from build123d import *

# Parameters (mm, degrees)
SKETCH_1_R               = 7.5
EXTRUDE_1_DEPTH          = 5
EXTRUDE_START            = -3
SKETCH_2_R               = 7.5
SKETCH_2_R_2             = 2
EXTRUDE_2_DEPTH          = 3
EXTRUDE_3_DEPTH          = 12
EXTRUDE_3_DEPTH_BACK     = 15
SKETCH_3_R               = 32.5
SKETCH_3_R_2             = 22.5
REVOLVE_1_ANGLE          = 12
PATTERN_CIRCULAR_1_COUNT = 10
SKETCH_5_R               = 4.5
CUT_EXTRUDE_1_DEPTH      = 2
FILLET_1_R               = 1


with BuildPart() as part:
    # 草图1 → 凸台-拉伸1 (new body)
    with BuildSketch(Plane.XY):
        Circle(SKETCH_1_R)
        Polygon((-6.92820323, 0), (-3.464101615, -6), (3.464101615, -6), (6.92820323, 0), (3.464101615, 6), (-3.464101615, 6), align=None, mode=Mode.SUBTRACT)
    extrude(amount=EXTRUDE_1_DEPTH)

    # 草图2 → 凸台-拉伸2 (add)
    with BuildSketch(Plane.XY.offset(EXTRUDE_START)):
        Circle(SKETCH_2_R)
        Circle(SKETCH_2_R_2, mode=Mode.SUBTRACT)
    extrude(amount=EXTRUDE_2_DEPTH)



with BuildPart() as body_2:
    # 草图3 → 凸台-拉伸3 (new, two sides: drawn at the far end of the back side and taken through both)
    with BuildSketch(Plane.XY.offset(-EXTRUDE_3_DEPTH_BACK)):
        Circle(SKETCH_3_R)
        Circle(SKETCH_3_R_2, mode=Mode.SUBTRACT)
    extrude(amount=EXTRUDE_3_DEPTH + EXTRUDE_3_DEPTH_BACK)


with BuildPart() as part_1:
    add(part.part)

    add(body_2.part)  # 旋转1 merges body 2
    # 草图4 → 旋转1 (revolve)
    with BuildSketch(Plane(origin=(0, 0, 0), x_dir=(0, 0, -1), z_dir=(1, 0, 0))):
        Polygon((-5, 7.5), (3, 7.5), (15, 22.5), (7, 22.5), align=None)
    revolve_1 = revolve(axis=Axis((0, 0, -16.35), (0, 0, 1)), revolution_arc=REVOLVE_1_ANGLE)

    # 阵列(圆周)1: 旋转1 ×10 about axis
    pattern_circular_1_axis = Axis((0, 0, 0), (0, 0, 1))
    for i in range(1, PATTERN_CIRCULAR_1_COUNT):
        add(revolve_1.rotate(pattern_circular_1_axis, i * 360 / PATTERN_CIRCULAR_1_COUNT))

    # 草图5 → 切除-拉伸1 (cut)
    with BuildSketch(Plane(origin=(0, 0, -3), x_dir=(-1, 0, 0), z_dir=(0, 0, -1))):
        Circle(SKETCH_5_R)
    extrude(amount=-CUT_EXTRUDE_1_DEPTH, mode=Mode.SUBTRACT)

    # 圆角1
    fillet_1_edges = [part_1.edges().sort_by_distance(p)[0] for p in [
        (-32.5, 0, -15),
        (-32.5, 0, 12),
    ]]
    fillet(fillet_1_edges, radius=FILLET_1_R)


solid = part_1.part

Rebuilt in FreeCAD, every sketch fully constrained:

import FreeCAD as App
import Part
import Sketcher

V = App.Vector
Q = App.Units.Quantity


def edges_at(feature, points):
    """Names of the edges that pass closest to the given points."""
    edges = feature.Shape.Edges
    near = lambda p: min(range(len(edges)), key=lambda i: edges[i].distToShape(Part.Vertex(*p))[0])
    return sorted({f"Edge{near(p) + 1}" for p in points})


def add_polygon(sketch, points):
    """Adds a closed chain of lines whose ends are joined by coincident constraints."""
    first, n = sketch.GeometryCount, len(points)
    for a, b in zip(points, points[1:] + points[:1]):
        sketch.addGeometry(Part.LineSegment(App.Vector(*a, 0), App.Vector(*b, 0)), False)
    for i in range(n):
        sketch.addConstraint(Sketcher.Constraint("Coincident", first + i, 2, first + (i + 1) % n, 1))

doc = App.newDocument("Part")
body = doc.addObject("PartDesign::Body", "Body")

# Sketch on XY plane
sketch1 = doc.addObject("Sketcher::SketchObject", "Sketch")
body.addObject(sketch1)
sketch1.AttachmentSupport = (doc.XY_Plane, [""])
sketch1.MapMode = "FlatFace"
sketch1.addGeometry(Part.Circle(V(0, 0, 0), V(0, 0, 1), 7.5), False)  # 0
add_polygon(sketch1, [(-3.464102, -6), (-6.928203, 0), (-3.464102, 6), (3.464102, 6), (6.928203, 0), (3.464102, -6)])  # lines 1-6
sketch1.addConstraint([
    Sketcher.Constraint("Horizontal", 3),
    Sketcher.Constraint("Horizontal", 6),
    Sketcher.Constraint("Coincident", 0, 3, -1, 1),
    Sketcher.Constraint("Symmetric", 1, 2, 4, 2, -1, 1),
    Sketcher.Constraint("Symmetric", 2, 2, 5, 2, -1, 1),
    Sketcher.Constraint("PointOnObject", 1, 2, -1),
    Sketcher.Constraint("Parallel", 1, 4),
    Sketcher.Constraint("Vertical", 3, 2, 5, 2),
    Sketcher.Constraint("Diameter", 0, Q("15 mm")),
    Sketcher.Constraint("Angle", 1, Q("120 deg")),
    Sketcher.Constraint("DistanceY", -1, 1, 2, 2, Q("6 mm")),
    Sketcher.Constraint("DistanceX", 2, 2, -1, 1, Q("3.464102 mm")),
])
pad1 = doc.addObject("PartDesign::Pad", "Pad")
body.addObject(pad1)
pad1.Profile = sketch1
pad1.Length = 5

# Sketch on XY plane
sketch2 = doc.addObject("Sketcher::SketchObject", "Sketch001")
body.addObject(sketch2)
sketch2.AttachmentSupport = (doc.XY_Plane, [""])
sketch2.MapMode = "FlatFace"
sketch2.AttachmentOffset = App.Placement(V(0, 0, -3), App.Rotation())
sketch2.addGeometry([
    Part.Circle(V(0, 0, 0), V(0, 0, 1), 7.5),
    Part.Circle(V(0, 0, 0), V(0, 0, 1), 2),
], False)
sketch2.addConstraint([
    Sketcher.Constraint("Coincident", 0, 3, -1, 1),
    Sketcher.Constraint("Coincident", 1, 3, -1, 1),
    Sketcher.Constraint("Diameter", 0, Q("15 mm")),
    Sketcher.Constraint("Diameter", 1, Q("4 mm")),
])
pad2 = doc.addObject("PartDesign::Pad", "Pad001")
body.addObject(pad2)
pad2.Profile = sketch2
pad2.Length = 3
body2 = doc.addObject("PartDesign::Body", "Body001")

# Sketch on XY plane
sketch3 = doc.addObject("Sketcher::SketchObject", "Sketch002")
body2.addObject(sketch3)
sketch3.AttachmentSupport = (doc.getObject("XY_Plane001"), [""])
sketch3.MapMode = "FlatFace"
sketch3.addGeometry([
    Part.Circle(V(0, 0, 0), V(0, 0, 1), 32.5),
    Part.Circle(V(0, 0, 0), V(0, 0, 1), 22.5),
], False)
sketch3.addConstraint([
    Sketcher.Constraint("Coincident", 0, 3, -1, 1),
    Sketcher.Constraint("Coincident", 1, 3, -1, 1),
    Sketcher.Constraint("Diameter", 0, Q("65 mm")),
    Sketcher.Constraint("Diameter", 1, Q("45 mm")),
])
pad3 = doc.addObject("PartDesign::Pad", "Pad002")
body2.addObject(pad3)
pad3.Profile = sketch3
pad3.Type = "TwoLengths"
pad3.Length = 12
pad3.Length2 = 15
body.AllowCompound = True
doc.recompute()

boolean = doc.addObject("PartDesign::Boolean", "Boolean")
body.addObject(boolean)
boolean.Type = "Fuse"
boolean.addObjects([body2])

# Sketch on YZ plane
sketch4 = doc.addObject("Sketcher::SketchObject", "Sketch003")
body.addObject(sketch4)
sketch4.AttachmentSupport = (doc.YZ_Plane, [""])
sketch4.MapMode = "FlatFace"
add_polygon(sketch4, [(7.5, 5), (7.5, -3), (22.5, -15), (22.5, -7)])  # lines 0-3
sketch4.addConstraint([
    Sketcher.Constraint("Vertical", 0),
    Sketcher.Constraint("Vertical", 2),
    Sketcher.Constraint("Parallel", 1, 3),
    Sketcher.Constraint("DistanceY", 0, 2, 0, 1, Q("8 mm")),
    Sketcher.Constraint("DistanceY", 0, 2, -1, 1, Q("3 mm")),
    Sketcher.Constraint("DistanceY", 1, 2, -1, 1, Q("15 mm")),
    Sketcher.Constraint("DistanceX", 0, 2, 1, 2, Q("15 mm")),
    Sketcher.Constraint("DistanceX", -1, 1, 0, 2, Q("7.5 mm")),
])
revolution = doc.addObject("PartDesign::Revolution", "Revolution")
body.addObject(revolution)
revolution.Profile = sketch4
revolution.ReferenceAxis = (sketch4, ["V_Axis"])
revolution.Angle = 12
doc.recompute()

polarpattern = doc.addObject("PartDesign::PolarPattern", "PolarPattern")
body.addObject(polarpattern)
polarpattern.Originals = [revolution]
polarpattern.Axis = (doc.Z_Axis, [""])
polarpattern.Angle = 360
polarpattern.Occurrences = 10
body.Tip = polarpattern

# Sketch on XY plane
sketch5 = doc.addObject("Sketcher::SketchObject", "Sketch004")
body.addObject(sketch5)
sketch5.AttachmentSupport = (doc.XY_Plane, [""])
sketch5.MapMode = "FlatFace"
sketch5.AttachmentOffset = App.Placement(V(0, 0, -3), App.Rotation())
sketch5.addGeometry(Part.Circle(V(0, 0, 0), V(0, 0, 1), 4.5), False)
sketch5.addConstraint([
    Sketcher.Constraint("Coincident", 0, 3, -1, 1),
    Sketcher.Constraint("Diameter", 0, Q("9 mm")),
])
pocket1 = doc.addObject("PartDesign::Pocket", "Pocket")
body.addObject(pocket1)
pocket1.Profile = sketch5
pocket1.Length = 2
pocket1.Reversed = True
doc.recompute()

fillet = doc.addObject("PartDesign::Fillet", "Fillet")
body.addObject(fillet)
fillet.Base = (pocket1, edges_at(pocket1, [(-32.5, 0, -15), (-32.5, 0, 12)]))
fillet.Radius = 1

doc.recompute()
